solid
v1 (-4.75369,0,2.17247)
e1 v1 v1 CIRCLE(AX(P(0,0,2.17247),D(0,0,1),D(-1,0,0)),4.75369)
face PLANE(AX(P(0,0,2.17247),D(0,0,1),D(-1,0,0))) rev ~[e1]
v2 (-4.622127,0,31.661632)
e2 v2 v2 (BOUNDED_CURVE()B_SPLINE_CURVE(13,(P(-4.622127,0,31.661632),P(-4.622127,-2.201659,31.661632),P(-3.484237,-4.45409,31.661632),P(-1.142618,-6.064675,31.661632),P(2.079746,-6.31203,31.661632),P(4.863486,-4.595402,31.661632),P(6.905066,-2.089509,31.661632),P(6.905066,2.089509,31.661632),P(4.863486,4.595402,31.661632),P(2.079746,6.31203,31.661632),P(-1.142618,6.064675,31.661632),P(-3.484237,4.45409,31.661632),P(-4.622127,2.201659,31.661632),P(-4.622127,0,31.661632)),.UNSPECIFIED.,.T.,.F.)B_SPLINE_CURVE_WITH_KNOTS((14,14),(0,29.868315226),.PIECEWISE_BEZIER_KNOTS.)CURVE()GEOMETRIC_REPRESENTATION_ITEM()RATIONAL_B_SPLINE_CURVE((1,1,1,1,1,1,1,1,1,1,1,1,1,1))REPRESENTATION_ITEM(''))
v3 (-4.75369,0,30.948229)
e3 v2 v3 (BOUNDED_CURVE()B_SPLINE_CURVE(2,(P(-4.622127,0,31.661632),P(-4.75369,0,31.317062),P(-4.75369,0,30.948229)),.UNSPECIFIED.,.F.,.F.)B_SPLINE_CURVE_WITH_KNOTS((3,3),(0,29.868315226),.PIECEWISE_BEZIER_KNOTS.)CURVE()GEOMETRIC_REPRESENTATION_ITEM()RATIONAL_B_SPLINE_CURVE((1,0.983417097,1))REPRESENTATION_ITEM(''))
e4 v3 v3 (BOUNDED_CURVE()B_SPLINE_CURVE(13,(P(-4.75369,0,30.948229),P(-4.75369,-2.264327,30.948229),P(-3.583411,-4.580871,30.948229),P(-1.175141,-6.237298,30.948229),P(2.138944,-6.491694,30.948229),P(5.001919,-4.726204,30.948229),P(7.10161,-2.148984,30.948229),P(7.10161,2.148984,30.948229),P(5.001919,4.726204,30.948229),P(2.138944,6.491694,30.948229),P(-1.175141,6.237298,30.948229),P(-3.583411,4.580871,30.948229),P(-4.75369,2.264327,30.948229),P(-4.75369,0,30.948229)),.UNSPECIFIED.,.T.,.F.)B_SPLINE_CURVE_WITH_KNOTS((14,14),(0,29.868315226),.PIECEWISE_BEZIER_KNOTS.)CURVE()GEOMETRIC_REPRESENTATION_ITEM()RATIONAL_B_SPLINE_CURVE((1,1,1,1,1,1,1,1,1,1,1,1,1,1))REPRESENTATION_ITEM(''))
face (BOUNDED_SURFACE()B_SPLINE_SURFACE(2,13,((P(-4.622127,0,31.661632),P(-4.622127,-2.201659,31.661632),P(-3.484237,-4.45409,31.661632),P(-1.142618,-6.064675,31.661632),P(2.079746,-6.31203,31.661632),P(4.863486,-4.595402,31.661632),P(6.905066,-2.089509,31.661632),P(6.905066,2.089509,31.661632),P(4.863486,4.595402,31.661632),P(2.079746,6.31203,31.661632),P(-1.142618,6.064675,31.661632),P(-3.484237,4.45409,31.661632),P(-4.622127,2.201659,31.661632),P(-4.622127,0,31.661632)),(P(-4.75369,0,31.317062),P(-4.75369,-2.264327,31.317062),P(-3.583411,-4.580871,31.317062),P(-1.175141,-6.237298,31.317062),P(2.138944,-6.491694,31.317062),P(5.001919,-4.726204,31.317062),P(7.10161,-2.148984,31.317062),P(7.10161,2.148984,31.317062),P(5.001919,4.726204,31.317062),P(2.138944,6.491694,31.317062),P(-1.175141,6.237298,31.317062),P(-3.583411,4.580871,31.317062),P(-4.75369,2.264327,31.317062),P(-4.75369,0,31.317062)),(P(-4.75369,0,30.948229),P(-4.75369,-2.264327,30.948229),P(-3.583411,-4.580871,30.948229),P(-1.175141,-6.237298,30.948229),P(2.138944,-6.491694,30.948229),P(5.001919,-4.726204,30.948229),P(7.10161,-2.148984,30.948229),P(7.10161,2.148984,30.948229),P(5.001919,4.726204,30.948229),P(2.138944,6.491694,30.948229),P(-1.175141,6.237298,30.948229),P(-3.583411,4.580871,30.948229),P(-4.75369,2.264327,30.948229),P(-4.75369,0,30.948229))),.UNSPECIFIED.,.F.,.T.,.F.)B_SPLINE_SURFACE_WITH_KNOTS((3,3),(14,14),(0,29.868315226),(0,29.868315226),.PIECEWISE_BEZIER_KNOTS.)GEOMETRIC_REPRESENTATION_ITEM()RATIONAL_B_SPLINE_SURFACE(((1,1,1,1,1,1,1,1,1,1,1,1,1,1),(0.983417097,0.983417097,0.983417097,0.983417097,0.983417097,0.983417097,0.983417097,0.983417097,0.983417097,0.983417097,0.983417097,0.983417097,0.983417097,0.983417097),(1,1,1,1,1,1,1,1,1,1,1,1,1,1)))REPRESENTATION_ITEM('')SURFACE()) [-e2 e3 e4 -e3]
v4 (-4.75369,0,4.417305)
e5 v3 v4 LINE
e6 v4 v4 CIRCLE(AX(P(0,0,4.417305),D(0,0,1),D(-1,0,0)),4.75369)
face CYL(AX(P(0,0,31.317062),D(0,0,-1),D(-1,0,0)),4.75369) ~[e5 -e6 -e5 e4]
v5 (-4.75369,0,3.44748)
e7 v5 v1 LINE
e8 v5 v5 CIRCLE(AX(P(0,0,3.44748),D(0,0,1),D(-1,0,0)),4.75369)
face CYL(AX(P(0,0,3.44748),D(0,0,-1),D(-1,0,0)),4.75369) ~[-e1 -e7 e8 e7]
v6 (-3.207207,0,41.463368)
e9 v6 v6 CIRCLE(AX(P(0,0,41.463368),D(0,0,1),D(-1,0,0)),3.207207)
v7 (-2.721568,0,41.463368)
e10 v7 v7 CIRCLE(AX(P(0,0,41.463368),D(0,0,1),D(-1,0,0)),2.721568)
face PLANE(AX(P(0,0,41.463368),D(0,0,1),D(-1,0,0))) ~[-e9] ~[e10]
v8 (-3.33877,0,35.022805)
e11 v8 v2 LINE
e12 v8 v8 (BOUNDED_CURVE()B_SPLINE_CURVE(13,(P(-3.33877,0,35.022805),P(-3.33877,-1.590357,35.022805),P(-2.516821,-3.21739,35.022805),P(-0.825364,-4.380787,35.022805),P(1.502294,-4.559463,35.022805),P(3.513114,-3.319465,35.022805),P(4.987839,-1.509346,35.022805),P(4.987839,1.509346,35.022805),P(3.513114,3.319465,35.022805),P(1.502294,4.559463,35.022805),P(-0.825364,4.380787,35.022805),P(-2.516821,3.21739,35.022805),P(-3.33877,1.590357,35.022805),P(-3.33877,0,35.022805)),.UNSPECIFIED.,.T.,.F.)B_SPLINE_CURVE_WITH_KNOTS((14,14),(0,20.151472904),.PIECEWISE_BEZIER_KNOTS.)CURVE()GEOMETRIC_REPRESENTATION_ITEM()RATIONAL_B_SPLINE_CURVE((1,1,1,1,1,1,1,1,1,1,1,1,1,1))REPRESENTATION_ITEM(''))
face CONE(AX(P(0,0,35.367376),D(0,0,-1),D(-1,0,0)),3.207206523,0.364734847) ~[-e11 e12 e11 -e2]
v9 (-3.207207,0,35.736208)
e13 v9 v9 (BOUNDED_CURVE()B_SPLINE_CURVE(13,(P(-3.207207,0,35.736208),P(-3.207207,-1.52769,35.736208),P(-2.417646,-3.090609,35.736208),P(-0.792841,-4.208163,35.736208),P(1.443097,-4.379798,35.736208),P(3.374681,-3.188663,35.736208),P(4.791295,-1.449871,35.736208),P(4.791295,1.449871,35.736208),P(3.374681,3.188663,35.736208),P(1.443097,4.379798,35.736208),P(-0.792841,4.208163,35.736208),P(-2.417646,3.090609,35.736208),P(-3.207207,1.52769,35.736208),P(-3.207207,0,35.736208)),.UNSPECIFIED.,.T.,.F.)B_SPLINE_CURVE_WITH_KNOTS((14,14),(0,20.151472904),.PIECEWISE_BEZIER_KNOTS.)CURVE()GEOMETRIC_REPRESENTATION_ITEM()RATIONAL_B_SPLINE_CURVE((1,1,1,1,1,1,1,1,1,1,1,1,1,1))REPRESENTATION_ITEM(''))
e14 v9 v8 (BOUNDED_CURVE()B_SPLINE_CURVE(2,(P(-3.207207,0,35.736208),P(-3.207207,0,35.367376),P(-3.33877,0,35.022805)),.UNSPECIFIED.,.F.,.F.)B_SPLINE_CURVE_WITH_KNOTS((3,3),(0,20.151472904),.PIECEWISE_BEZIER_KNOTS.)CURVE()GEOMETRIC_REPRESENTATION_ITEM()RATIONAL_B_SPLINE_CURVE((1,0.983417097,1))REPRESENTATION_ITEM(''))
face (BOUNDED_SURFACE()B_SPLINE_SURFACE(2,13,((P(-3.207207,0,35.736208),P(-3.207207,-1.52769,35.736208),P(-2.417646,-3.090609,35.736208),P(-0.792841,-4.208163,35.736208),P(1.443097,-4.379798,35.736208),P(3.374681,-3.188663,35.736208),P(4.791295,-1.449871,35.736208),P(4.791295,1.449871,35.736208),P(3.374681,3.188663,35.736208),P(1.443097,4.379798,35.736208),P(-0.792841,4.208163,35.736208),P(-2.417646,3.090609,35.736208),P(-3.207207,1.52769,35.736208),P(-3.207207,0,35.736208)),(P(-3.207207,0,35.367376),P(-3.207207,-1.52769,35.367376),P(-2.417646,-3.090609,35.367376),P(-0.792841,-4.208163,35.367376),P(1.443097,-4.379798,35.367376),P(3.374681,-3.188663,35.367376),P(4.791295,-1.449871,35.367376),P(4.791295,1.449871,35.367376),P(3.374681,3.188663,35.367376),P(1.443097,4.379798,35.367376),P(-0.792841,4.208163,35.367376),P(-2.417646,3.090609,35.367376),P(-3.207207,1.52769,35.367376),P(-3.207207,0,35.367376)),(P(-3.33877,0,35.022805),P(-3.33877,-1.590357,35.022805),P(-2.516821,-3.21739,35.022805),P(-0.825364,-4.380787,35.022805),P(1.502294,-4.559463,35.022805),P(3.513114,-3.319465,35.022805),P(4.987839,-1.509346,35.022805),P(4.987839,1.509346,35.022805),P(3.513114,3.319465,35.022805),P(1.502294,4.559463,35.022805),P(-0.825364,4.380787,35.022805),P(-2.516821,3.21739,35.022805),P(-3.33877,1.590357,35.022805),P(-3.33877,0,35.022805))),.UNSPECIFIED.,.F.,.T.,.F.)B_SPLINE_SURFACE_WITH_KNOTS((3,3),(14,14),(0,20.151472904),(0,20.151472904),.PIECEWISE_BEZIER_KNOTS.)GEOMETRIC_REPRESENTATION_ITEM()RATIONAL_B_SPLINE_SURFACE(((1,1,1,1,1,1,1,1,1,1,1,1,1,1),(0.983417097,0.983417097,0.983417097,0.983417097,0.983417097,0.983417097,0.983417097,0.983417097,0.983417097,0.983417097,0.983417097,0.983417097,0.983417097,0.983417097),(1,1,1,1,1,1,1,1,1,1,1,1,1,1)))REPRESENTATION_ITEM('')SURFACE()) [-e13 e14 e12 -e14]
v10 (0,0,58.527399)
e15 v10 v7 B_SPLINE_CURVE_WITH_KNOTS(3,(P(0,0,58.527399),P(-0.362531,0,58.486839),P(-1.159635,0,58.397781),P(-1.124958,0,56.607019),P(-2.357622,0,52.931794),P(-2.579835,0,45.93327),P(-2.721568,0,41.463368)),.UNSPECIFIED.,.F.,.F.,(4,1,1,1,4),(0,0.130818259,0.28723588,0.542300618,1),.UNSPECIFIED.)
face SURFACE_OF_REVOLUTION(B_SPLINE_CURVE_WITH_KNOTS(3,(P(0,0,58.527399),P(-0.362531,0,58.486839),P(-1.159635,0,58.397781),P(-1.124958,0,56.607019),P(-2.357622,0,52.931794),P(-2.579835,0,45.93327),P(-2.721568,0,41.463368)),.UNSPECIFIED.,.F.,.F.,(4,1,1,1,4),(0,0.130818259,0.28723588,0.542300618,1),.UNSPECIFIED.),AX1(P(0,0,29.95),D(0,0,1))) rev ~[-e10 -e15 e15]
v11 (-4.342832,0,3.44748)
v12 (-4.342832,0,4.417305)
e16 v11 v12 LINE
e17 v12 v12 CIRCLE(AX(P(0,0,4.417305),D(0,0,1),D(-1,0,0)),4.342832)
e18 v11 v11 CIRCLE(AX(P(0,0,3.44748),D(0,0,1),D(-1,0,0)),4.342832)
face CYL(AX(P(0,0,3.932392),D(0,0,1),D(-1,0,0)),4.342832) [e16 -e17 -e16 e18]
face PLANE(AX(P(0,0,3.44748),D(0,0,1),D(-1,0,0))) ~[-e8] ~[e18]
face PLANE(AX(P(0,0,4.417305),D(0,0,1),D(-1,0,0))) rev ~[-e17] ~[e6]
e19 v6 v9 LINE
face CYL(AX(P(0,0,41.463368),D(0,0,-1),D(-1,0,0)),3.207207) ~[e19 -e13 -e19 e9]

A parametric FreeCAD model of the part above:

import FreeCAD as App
import Part
import Sketcher


def edges_at(feature, points):
    """Names of the edges that pass closest to the given points."""
    edges = feature.Shape.Edges
    near = lambda p: min(range(len(edges)), key=lambda i: edges[i].distToShape(Part.Vertex(*p))[0])
    return sorted({f"Edge{near(p) + 1}" for p in points})


def add_polygon(sketch, points):
    """Adds a closed chain of lines whose ends are joined by coincident constraints."""
    first, n = sketch.GeometryCount, len(points)
    for a, b in zip(points, points[1:] + points[:1]):
        sketch.addGeometry(Part.LineSegment(App.Vector(*a, 0), App.Vector(*b, 0)), False)
    for i in range(n):
        sketch.addConstraint(Sketcher.Constraint("Coincident", first + i, 2, first + (i + 1) % n, 1))

doc = App.newDocument("Part")
params = doc.addObject("Spreadsheet::Sheet", "Params")
for row, (alias, value) in enumerate([
    ("revolution_angle", "360 deg"),
    ("fillet_radius", "2 mm"),
    ("revolution2_angle", "360 deg"),
], start=1):
    params.set(f"A{row}", alias)
    params.set(f"B{row}", "=" + value)
    params.setAlias(f"B{row}", alias)

body = doc.addObject("PartDesign::Body", "Body")

# Sketch on XZ plane
sketch1 = body.newObject("Sketcher::SketchObject", "Sketch")
sketch1.AttachmentSupport = (doc.getObject("XZ_Plane"), [""])
sketch1.MapMode = "FlatFace"
add_polygon(sketch1, [(0, 41.463368), (-3.207207, 41.463368), (-3.207207, 35.367376), (-4.75369, 31.317062), (-4.75369, 4.417305), (-4.342832, 4.417305), (-4.342832, 3.44748), (-4.75369, 3.44748), (-4.75369, 2.17247), (0, 2.17247)])  # lines 0-9
sketch1.addConstraint([
    Sketcher.Constraint("Horizontal", 0),
    Sketcher.Constraint("Vertical", 1),
    Sketcher.Constraint("Vertical", 3),
    Sketcher.Constraint("Horizontal", 4),
    Sketcher.Constraint("Vertical", 5),
    Sketcher.Constraint("Horizontal", 6),
    Sketcher.Constraint("Vertical", 7),
    Sketcher.Constraint("Horizontal", 8),
    Sketcher.Constraint("Vertical", 9),
    Sketcher.Constraint("PointOnObject", 8, 2, -2),
    Sketcher.Constraint("Vertical", 3, 2, 6, 2),
    Sketcher.Constraint("DistanceX", 8, 1, 8, 2, 4.75369),
    Sketcher.Constraint("DistanceY", 7, 2, 7, 1, 1.27501),
    Sketcher.Constraint("Distance", 2, 4.33551),
    Sketcher.Constraint("DistanceX", 0, 2, 0, 1, 3.207207),
    Sketcher.Constraint("DistanceX", 4, 1, 4, 2, 0.410858),
    Sketcher.Constraint("DistanceY", 1, 2, 1, 1, 6.095992),
    Sketcher.Constraint("DistanceY", 3, 2, 3, 1, 26.899757),
    Sketcher.Constraint("DistanceY", 5, 2, 5, 1, 0.969824),
    Sketcher.Constraint("DistanceY", -1, 1, 5, 2, 3.44748),
])
revolution = body.newObject("PartDesign::Revolution", "Revolution")
revolution.Profile = sketch1
revolution.ReferenceAxis = (sketch1, ["V_Axis"])
revolution.setExpression("Angle", "Params.revolution_angle")
doc.recompute()

fillet = body.newObject("PartDesign::Fillet", "Fillet")
fillet.Base = (revolution, edges_at(revolution, [(3.207, 0, 35.367), (4.754, 0, 31.317)]))
fillet.setExpression("Radius", "Params.fillet_radius")

# Sketch on XZ plane
sketch2 = body.newObject("Sketcher::SketchObject", "Sketch001")
sketch2.AttachmentSupport = (doc.getObject("XZ_Plane"), [""])
sketch2.MapMode = "FlatFace"
sketch2.addGeometry([
    Part.LineSegment(App.Vector(0, 41.463368, 0), App.Vector(0, 58.527399, 0)),
    Part.BSplineCurve([App.Vector(0, 58.527399, 0), App.Vector(-0.362531, 58.486839, 0), App.Vector(-1.159635, 58.397781, 0), App.Vector(-1.124958, 56.607019, 0), App.Vector(-2.357622, 52.931794, 0), App.Vector(-2.579835, 45.93327, 0), App.Vector(-2.721568, 41.463368, 0)], [4, 1, 1, 1, 4], [0, 0.130818259, 0.28723588, 0.542300618, 1], False, 3, [1, 1, 1, 1, 1, 1, 1], False),
    Part.LineSegment(App.Vector(-2.721568, 41.463368, 0), App.Vector(0, 41.463368, 0)),
], False)
sketch2.addConstraint([
    Sketcher.Constraint("Block", 1),
    Sketcher.Constraint("Coincident", 0, 2, 1, 1),
    Sketcher.Constraint("Coincident", 1, 2, 2, 1),
    Sketcher.Constraint("Coincident", 2, 2, 0, 1),
    Sketcher.Constraint("Vertical", 0),
    Sketcher.Constraint("Horizontal", 2),
])
revolution2 = body.newObject("PartDesign::Revolution", "Revolution001")
revolution2.Profile = sketch2
revolution2.ReferenceAxis = (sketch2, ["V_Axis"])
revolution2.setExpression("Angle", "Params.revolution2_angle")

doc.recompute()
